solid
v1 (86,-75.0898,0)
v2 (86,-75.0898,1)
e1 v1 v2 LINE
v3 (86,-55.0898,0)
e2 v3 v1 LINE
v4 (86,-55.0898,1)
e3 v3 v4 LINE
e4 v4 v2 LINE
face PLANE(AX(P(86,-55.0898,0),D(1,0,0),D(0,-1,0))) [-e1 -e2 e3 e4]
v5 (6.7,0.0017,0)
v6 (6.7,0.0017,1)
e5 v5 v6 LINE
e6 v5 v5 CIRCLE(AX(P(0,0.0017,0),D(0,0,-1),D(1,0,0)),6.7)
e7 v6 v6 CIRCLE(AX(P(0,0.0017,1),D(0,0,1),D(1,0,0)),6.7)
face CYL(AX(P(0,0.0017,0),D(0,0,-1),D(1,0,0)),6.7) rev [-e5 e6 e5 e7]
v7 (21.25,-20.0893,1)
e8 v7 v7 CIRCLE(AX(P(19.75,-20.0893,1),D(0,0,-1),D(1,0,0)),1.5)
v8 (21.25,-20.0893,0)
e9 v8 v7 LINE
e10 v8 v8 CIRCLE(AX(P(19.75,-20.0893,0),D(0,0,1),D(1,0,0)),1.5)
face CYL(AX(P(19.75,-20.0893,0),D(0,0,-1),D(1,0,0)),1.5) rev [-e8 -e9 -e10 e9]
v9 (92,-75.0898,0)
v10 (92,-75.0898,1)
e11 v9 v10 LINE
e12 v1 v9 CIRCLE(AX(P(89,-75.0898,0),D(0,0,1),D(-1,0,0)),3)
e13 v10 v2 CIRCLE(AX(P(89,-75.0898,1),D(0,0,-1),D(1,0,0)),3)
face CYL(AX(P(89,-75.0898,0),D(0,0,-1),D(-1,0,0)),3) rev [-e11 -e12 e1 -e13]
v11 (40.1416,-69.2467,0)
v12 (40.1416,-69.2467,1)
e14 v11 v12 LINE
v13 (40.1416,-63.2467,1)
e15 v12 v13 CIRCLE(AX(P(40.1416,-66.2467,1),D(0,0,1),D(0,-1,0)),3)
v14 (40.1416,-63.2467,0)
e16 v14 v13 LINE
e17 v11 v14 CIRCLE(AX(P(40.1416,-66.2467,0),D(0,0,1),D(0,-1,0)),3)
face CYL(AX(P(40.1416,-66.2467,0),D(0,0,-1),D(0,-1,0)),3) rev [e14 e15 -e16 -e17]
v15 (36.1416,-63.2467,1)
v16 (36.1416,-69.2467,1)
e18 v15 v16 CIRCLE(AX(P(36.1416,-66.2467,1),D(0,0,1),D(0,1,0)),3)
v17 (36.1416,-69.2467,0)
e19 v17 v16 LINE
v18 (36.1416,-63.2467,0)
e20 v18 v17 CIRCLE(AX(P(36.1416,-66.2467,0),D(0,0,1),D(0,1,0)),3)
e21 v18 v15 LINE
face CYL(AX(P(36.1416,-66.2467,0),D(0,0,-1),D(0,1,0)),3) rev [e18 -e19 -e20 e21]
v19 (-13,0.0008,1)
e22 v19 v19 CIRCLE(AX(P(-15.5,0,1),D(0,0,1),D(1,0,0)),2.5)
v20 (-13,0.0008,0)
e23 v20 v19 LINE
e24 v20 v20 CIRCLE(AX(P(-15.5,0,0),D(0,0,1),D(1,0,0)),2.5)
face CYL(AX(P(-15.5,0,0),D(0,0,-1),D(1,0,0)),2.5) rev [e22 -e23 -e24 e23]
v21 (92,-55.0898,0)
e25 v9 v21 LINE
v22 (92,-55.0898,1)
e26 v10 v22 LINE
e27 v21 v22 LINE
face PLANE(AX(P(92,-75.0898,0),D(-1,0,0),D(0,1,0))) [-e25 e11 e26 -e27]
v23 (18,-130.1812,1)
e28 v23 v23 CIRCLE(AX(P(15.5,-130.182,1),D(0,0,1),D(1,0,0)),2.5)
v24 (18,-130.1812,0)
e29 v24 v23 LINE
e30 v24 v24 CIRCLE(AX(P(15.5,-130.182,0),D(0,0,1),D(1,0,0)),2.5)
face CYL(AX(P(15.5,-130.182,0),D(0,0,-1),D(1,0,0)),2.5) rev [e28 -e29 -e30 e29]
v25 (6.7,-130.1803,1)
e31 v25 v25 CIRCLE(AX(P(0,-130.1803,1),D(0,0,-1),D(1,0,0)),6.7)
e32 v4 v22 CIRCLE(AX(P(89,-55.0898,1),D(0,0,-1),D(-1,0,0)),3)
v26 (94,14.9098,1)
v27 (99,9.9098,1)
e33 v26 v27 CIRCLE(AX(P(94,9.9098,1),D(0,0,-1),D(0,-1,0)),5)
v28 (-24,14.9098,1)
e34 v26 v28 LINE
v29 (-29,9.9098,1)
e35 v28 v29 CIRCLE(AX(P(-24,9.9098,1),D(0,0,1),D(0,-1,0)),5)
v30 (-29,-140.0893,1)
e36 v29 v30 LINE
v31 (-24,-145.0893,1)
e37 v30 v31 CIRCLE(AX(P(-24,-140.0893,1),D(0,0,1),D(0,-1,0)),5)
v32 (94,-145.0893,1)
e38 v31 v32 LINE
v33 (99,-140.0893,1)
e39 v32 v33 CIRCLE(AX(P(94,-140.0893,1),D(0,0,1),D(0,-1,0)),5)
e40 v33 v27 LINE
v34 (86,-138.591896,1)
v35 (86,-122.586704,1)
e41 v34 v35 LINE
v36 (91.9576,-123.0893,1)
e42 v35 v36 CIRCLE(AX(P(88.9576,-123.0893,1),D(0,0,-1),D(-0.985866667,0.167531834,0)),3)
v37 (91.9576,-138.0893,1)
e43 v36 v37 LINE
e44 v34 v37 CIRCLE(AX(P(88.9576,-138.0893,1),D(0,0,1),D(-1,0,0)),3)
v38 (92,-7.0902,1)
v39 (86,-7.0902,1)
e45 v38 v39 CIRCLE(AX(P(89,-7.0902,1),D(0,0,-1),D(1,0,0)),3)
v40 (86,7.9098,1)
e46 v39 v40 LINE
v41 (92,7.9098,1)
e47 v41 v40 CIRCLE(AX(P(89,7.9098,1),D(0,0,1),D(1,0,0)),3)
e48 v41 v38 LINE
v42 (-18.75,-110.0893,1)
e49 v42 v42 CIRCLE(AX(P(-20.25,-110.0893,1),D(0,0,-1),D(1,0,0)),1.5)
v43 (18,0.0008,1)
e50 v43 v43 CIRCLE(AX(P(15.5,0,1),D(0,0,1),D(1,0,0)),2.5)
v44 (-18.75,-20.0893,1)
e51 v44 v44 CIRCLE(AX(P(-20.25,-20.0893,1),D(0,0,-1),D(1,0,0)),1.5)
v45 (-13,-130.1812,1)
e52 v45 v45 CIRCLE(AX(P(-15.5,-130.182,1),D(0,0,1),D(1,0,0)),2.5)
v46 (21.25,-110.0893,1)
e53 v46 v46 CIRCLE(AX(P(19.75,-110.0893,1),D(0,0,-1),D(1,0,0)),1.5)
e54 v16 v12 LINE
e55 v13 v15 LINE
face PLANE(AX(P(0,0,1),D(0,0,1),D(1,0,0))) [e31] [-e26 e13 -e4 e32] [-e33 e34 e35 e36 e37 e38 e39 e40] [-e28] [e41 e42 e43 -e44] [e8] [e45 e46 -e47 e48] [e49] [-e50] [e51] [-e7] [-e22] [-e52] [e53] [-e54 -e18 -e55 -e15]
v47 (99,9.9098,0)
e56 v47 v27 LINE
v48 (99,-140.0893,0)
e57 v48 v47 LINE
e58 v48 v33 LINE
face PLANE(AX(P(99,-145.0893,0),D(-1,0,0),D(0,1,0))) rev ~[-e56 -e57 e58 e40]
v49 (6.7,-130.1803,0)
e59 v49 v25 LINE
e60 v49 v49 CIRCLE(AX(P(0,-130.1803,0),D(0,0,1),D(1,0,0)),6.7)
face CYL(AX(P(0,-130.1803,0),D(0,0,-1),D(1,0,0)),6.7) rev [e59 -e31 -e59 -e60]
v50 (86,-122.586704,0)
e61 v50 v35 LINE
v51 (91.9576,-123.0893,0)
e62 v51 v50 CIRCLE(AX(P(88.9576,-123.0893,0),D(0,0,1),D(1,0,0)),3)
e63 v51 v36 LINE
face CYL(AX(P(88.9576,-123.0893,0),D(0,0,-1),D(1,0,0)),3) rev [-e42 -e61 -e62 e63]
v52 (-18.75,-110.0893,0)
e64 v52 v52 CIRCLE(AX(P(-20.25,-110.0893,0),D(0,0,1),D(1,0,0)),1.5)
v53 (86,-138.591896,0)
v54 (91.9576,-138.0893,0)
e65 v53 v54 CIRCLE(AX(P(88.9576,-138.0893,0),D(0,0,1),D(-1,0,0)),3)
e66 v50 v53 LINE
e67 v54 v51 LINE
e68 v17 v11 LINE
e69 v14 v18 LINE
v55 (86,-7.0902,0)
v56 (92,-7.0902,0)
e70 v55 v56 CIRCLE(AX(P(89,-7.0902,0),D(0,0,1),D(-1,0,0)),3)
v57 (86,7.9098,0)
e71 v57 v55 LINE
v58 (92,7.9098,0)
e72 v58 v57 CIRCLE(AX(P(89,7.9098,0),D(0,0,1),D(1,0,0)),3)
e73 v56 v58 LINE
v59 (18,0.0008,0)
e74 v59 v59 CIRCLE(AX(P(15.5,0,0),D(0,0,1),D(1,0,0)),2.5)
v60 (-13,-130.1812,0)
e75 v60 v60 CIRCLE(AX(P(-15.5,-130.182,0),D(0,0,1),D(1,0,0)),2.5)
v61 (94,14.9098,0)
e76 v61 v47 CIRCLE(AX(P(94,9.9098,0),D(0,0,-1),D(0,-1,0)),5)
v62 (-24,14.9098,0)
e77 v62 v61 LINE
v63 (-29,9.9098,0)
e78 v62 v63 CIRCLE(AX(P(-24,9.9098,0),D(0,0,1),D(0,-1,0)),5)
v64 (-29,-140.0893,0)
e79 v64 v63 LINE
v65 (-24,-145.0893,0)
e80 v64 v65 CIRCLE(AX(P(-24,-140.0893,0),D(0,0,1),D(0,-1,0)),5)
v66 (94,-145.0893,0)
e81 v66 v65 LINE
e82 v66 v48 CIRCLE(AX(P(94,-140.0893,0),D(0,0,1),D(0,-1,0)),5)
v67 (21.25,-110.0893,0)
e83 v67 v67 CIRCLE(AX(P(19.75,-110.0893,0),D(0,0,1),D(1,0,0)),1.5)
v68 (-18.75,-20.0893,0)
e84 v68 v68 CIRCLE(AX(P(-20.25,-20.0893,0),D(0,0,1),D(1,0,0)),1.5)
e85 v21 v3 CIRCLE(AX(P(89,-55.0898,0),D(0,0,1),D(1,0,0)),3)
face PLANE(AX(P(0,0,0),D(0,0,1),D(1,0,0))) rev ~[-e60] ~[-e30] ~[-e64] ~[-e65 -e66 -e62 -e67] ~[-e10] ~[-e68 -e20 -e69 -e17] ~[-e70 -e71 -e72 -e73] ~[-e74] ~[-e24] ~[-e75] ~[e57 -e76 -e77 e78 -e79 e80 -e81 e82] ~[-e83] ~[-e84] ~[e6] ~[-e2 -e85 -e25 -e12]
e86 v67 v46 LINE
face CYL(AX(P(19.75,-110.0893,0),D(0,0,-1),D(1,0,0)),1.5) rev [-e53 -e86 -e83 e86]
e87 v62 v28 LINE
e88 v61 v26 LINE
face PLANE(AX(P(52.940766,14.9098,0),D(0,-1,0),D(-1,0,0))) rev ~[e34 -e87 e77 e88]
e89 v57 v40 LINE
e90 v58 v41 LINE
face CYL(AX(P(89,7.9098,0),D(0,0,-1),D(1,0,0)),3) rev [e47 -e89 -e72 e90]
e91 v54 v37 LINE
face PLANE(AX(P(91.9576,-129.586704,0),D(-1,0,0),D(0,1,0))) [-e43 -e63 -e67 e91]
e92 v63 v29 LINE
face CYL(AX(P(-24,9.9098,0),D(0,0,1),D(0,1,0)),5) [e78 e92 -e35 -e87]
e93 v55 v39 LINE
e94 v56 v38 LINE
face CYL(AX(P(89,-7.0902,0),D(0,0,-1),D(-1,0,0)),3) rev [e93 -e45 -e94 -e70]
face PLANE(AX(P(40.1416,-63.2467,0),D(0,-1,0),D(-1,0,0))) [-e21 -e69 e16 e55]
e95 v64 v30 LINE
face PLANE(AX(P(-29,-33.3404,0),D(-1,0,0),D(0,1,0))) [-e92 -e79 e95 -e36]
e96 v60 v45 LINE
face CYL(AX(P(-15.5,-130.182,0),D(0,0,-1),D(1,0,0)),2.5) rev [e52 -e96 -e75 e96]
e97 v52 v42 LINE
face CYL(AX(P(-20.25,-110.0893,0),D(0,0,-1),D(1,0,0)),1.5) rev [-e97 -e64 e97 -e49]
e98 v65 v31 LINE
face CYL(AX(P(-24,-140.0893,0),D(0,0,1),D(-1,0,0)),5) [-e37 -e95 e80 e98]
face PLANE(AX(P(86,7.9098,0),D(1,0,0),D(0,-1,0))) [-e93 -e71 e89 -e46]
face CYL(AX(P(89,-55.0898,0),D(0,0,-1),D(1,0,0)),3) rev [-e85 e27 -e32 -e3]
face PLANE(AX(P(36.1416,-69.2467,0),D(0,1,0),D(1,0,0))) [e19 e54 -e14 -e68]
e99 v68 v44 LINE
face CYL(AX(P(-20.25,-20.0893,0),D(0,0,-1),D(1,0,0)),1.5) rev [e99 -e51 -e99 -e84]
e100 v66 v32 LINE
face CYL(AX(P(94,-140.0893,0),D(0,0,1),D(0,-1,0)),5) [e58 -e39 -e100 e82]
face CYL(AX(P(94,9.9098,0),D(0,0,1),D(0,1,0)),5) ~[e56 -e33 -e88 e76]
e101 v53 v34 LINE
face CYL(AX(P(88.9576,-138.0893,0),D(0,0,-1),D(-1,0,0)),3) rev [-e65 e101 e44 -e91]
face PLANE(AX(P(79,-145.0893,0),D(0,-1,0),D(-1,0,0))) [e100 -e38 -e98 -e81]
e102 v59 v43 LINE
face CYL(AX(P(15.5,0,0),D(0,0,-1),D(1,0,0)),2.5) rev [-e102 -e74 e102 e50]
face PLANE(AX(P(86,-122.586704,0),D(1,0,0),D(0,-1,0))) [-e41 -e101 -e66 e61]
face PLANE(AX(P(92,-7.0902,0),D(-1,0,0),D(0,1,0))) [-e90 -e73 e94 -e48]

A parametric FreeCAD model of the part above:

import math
import FreeCAD as App
import Part
import Sketcher

V = App.Vector
Q = App.Units.Quantity


def edges_at(feature, points):
    """Names of the edges that pass closest to the given points."""
    edges = feature.Shape.Edges
    near = lambda p: min(range(len(edges)), key=lambda i: edges[i].distToShape(Part.Vertex(*p))[0])
    return sorted({f"Edge{near(p) + 1}" for p in points})


def add_polygon(sketch, points):
    """Adds a closed chain of lines whose ends are joined by coincident constraints."""
    first, n = sketch.GeometryCount, len(points)
    for a, b in zip(points, points[1:] + points[:1]):
        sketch.addGeometry(Part.LineSegment(App.Vector(*a, 0), App.Vector(*b, 0)), False)
    for i in range(n):
        sketch.addConstraint(Sketcher.Constraint("Coincident", first + i, 2, first + (i + 1) % n, 1))

doc = App.newDocument("Part")
body = doc.addObject("PartDesign::Body", "Body")

sketch1 = body.newObject("Sketcher::SketchObject", "Sketch")
sketch1.AttachmentSupport = (doc.getObject("XY_Plane"), [""])
sketch1.MapMode = "FlatFace"
add_polygon(sketch1, [(-29, 14.9), (-29, -145.1), (99, -145.1), (99, 14.9)])
sketch1.addGeometry(Part.Circle(V(0, 0, 0), V(0, 0, 1), 6.7), False)
sketch1.addGeometry(Part.Circle(V(15.5, 0, 0), V(0, 0, 1), 2.5), False)
sketch1.addGeometry(Part.Circle(V(-15.5, 0, 0), V(0, 0, 1), 2.5), False)
sketch1.addGeometry(Part.Circle(V(19.8, -20.1, 0), V(0, 0, 1), 1.5), False)
sketch1.addGeometry(Part.Circle(V(-20.2, -20.1, 0), V(0, 0, 1), 1.5), False)
sketch1.addGeometry(Part.LineSegment(V(36.1, -63.2, 0), V(40.1, -63.2, 0)), False)
sketch1.addGeometry(Part.ArcOfCircle(Part.Circle(V(40.1, -66.2, 0), V(0, 0, 1), 3), math.radians(-90), math.radians(90)), False)
sketch1.addGeometry(Part.LineSegment(V(40.1, -69.2, 0), V(36.1, -69.2, 0)), False)
sketch1.addGeometry(Part.ArcOfCircle(Part.Circle(V(36.1, -66.2, 0), V(0, 0, 1), 3), math.radians(90), math.radians(270)), False)
sketch1.addGeometry(Part.ArcOfCircle(Part.Circle(V(89, 7.9, 0), V(0, 0, 1), 3), math.radians(0), math.radians(180)), False)
sketch1.addGeometry(Part.LineSegment(V(92, 7.9, 0), V(92, -7.1, 0)), False)
sketch1.addGeometry(Part.ArcOfCircle(Part.Circle(V(89, -7.1, 0), V(0, 0, 1), 3), math.radians(180), math.radians(360)), False)
sketch1.addGeometry(Part.LineSegment(V(86, -7.1, 0), V(86, 7.9, 0)), False)
sketch1.addGeometry(Part.Circle(V(19.8, -110.1, 0), V(0, 0, 1), 1.5), False)
sketch1.addGeometry(Part.LineSegment(V(92, -55.1, 0), V(92, -75.1, 0)), False)
sketch1.addGeometry(Part.ArcOfCircle(Part.Circle(V(89, -75.1, 0), V(0, 0, 1), 3), math.radians(180), math.radians(360)), False)
sketch1.addGeometry(Part.LineSegment(V(86, -75.1, 0), V(86, -55.1, 0)), False)
sketch1.addGeometry(Part.ArcOfCircle(Part.Circle(V(89, -55.1, 0), V(0, 0, 1), 3), math.radians(0), math.radians(180)), False)
sketch1.addGeometry(Part.LineSegment(V(92, -123.1, 0), V(92, -138.1, 0)), False)
sketch1.addGeometry(Part.ArcOfCircle(Part.Circle(V(89, -138.1, 0), V(0, 0, 1), 3), math.radians(-170), math.radians(0)), False)
sketch1.addGeometry(Part.LineSegment(V(86, -138.6, 0), V(86, -122.6, 0)), False)
sketch1.addGeometry(Part.ArcOfCircle(Part.Circle(V(89, -123.1, 0), V(0, 0, 1), 3), math.radians(0), math.radians(170)), False)
sketch1.addGeometry(Part.Circle(V(-20.2, -110.1, 0), V(0, 0, 1), 1.5), False)
sketch1.addGeometry(Part.Circle(V(15.5, -130.2, 0), V(0, 0, 1), 2.5), False)
sketch1.addGeometry(Part.Circle(V(-15.5, -130.2, 0), V(0, 0, 1), 2.5), False)
sketch1.addGeometry(Part.Circle(V(0, -130.2, 0), V(0, 0, 1), 6.7), False)
sketch1.addConstraint([
    Sketcher.Constraint("Tangent", 9, 2, 10, 2),
    Sketcher.Constraint("Tangent", 10, 1, 11, 1),
    Sketcher.Constraint("Tangent", 11, 2, 12, 2),
    Sketcher.Constraint("Tangent", 12, 1, 9, 1),
    Sketcher.Constraint("Tangent", 13, 1, 14, 1),
    Sketcher.Constraint("Tangent", 14, 2, 15, 2),
    Sketcher.Constraint("Tangent", 15, 1, 16, 1),
    Sketcher.Constraint("Tangent", 16, 2, 13, 2),
    Sketcher.Constraint("Tangent", 18, 2, 19, 2),
    Sketcher.Constraint("Tangent", 19, 1, 20, 1),
    Sketcher.Constraint("Tangent", 20, 2, 21, 2),
    Sketcher.Constraint("Tangent", 21, 1, 18, 1),
    Sketcher.Constraint("Tangent", 22, 2, 23, 2),
    Sketcher.Constraint("Coincident", 23, 1, 24, 1),
    Sketcher.Constraint("Coincident", 24, 2, 25, 2),
    Sketcher.Constraint("Tangent", 25, 1, 22, 1),
    Sketcher.Constraint("Vertical", 0),
    Sketcher.Constraint("Horizontal", 1),
    Sketcher.Constraint("Vertical", 2),
    Sketcher.Constraint("Horizontal", 3),
    Sketcher.Constraint("Horizontal", 9),
    Sketcher.Constraint("Horizontal", 11),
    Sketcher.Constraint("Vertical", 14),
    Sketcher.Constraint("Vertical", 16),
    Sketcher.Constraint("Vertical", 18),
    Sketcher.Constraint("Vertical", 20),
    Sketcher.Constraint("Vertical", 22),
    Sketcher.Constraint("Vertical", 24),
    Sketcher.Constraint("Equal", 5, 6),
    Sketcher.Constraint("Equal", 7, 8),
    Sketcher.Constraint("Equal", 12, 13),
    Sketcher.Constraint("Equal", 8, 17),
    Sketcher.Constraint("Equal", 15, 19),
    Sketcher.Constraint("Equal", 21, 23),
    Sketcher.Constraint("Equal", 23, 25),
    Sketcher.Constraint("Equal", 17, 26),
    Sketcher.Constraint("Equal", 6, 27),
    Sketcher.Constraint("Equal", 27, 28),
    Sketcher.Constraint("Equal", 4, 29),
    Sketcher.Constraint("Symmetric", 5, 3, 6, 3, -1, 1),
    Sketcher.Constraint("Symmetric", 27, 3, 28, 3, -2),
    Sketcher.Constraint("PointOnObject", 4, 3, -2),
    Sketcher.Constraint("PointOnObject", 5, 3, -1),
    Sketcher.Constraint("PointOnObject", 29, 3, -2),
    Sketcher.Constraint("Horizontal", 7, 3, 8, 3),
    Sketcher.Constraint("Horizontal", 17, 3, 26, 3),
    Sketcher.Constraint("Vertical", 7, 3, 17, 3),
    Sketcher.Constraint("Vertical", 15, 3, 19, 3),
    Sketcher.Constraint("Vertical", 8, 3, 26, 3),
    Sketcher.Constraint("Vertical", 5, 3, 27, 3),
    Sketcher.Constraint("Vertical", 20, 2, 23, 1),
    Sketcher.Constraint("Equal", 16, 22),
    Sketcher.Constraint("Diameter", 7, Q("3 mm")),
    Sketcher.Constraint("Radius", 10, Q("3 mm")),
    Sketcher.Constraint("DistanceY", 14, 2, 14, 1, Q("15 mm")),
    Sketcher.Constraint("DistanceY", 18, 2, 18, 1, Q("20 mm")),
    Sketcher.Constraint("Diameter", 5, Q("5 mm")),
    Sketcher.Constraint("DistanceX", 8, 3, 7, 3, Q("40 mm")),
    Sketcher.Constraint("DistanceY", 17, 3, 7, 3, Q("90 mm")),
    Sketcher.Constraint("DistanceY", 1, 2, 23, 3, Q("7 mm")),
    Sketcher.Constraint("DistanceY", 13, 3, 2, 2, Q("7 mm")),
    Sketcher.Constraint("DistanceX", 13, 1, 2, 2, Q("7 mm")),
    Sketcher.Constraint("Diameter", 4, Q("13.4 mm")),
    Sketcher.Constraint("DistanceX", 1, 1, 1, 2, Q("128 mm")),
    Sketcher.Constraint("DistanceX", 9, 1, 9, 2, Q("4 mm")),
    Sketcher.Constraint("DistanceY", 0, 2, 0, 1, Q("159.999 mm")),
    Sketcher.Constraint("DistanceX", -1, 1, 13, 3, Q("89 mm")),
    Sketcher.Constraint("DistanceX", 6, 3, 5, 3, Q("31 mm")),
    Sketcher.Constraint("DistanceY", 23, 3, 17, 3, Q("28 mm")),
    Sketcher.Constraint("DistanceX", -1, 1, 7, 3, Q("19.75 mm")),
    Sketcher.Constraint("DistanceY", 24, 1, 24, 2, Q("16.0052 mm")),
    Sketcher.Constraint("DistanceY", 27, 3, -1, 1, Q("130.182 mm")),
    Sketcher.Constraint("DistanceY", 23, 1, -1, 1, Q("138.592 mm")),
    Sketcher.Constraint("DistanceY", 7, 3, 4, 3, Q("20.091 mm")),
    Sketcher.Constraint("DistanceY", 19, 3, 10, 3, Q("8.843 mm")),
    Sketcher.Constraint("DistanceX", 10, 3, 23, 3, Q("48.816 mm")),
    Sketcher.Constraint("DistanceY", 29, 3, 17, 3, Q("20.091 mm")),
    Sketcher.Constraint("DistanceY", 23, 1, 19, 1, Q("63.502 mm")),
])
pad1 = body.newObject("PartDesign::Pad", "Pad")
pad1.Profile = sketch1
pad1.Length = 1
doc.recompute()

fillet = body.newObject("PartDesign::Fillet", "Fillet")
fillet.Base = (pad1, edges_at(pad1, [
    (-29, -145.089, 0.5),
    (-29, 14.91, 0.5),
    (99, -145.089, 0.5),
    (99, 14.91, 0.5),
]))
fillet.Radius = 5

doc.recompute()
